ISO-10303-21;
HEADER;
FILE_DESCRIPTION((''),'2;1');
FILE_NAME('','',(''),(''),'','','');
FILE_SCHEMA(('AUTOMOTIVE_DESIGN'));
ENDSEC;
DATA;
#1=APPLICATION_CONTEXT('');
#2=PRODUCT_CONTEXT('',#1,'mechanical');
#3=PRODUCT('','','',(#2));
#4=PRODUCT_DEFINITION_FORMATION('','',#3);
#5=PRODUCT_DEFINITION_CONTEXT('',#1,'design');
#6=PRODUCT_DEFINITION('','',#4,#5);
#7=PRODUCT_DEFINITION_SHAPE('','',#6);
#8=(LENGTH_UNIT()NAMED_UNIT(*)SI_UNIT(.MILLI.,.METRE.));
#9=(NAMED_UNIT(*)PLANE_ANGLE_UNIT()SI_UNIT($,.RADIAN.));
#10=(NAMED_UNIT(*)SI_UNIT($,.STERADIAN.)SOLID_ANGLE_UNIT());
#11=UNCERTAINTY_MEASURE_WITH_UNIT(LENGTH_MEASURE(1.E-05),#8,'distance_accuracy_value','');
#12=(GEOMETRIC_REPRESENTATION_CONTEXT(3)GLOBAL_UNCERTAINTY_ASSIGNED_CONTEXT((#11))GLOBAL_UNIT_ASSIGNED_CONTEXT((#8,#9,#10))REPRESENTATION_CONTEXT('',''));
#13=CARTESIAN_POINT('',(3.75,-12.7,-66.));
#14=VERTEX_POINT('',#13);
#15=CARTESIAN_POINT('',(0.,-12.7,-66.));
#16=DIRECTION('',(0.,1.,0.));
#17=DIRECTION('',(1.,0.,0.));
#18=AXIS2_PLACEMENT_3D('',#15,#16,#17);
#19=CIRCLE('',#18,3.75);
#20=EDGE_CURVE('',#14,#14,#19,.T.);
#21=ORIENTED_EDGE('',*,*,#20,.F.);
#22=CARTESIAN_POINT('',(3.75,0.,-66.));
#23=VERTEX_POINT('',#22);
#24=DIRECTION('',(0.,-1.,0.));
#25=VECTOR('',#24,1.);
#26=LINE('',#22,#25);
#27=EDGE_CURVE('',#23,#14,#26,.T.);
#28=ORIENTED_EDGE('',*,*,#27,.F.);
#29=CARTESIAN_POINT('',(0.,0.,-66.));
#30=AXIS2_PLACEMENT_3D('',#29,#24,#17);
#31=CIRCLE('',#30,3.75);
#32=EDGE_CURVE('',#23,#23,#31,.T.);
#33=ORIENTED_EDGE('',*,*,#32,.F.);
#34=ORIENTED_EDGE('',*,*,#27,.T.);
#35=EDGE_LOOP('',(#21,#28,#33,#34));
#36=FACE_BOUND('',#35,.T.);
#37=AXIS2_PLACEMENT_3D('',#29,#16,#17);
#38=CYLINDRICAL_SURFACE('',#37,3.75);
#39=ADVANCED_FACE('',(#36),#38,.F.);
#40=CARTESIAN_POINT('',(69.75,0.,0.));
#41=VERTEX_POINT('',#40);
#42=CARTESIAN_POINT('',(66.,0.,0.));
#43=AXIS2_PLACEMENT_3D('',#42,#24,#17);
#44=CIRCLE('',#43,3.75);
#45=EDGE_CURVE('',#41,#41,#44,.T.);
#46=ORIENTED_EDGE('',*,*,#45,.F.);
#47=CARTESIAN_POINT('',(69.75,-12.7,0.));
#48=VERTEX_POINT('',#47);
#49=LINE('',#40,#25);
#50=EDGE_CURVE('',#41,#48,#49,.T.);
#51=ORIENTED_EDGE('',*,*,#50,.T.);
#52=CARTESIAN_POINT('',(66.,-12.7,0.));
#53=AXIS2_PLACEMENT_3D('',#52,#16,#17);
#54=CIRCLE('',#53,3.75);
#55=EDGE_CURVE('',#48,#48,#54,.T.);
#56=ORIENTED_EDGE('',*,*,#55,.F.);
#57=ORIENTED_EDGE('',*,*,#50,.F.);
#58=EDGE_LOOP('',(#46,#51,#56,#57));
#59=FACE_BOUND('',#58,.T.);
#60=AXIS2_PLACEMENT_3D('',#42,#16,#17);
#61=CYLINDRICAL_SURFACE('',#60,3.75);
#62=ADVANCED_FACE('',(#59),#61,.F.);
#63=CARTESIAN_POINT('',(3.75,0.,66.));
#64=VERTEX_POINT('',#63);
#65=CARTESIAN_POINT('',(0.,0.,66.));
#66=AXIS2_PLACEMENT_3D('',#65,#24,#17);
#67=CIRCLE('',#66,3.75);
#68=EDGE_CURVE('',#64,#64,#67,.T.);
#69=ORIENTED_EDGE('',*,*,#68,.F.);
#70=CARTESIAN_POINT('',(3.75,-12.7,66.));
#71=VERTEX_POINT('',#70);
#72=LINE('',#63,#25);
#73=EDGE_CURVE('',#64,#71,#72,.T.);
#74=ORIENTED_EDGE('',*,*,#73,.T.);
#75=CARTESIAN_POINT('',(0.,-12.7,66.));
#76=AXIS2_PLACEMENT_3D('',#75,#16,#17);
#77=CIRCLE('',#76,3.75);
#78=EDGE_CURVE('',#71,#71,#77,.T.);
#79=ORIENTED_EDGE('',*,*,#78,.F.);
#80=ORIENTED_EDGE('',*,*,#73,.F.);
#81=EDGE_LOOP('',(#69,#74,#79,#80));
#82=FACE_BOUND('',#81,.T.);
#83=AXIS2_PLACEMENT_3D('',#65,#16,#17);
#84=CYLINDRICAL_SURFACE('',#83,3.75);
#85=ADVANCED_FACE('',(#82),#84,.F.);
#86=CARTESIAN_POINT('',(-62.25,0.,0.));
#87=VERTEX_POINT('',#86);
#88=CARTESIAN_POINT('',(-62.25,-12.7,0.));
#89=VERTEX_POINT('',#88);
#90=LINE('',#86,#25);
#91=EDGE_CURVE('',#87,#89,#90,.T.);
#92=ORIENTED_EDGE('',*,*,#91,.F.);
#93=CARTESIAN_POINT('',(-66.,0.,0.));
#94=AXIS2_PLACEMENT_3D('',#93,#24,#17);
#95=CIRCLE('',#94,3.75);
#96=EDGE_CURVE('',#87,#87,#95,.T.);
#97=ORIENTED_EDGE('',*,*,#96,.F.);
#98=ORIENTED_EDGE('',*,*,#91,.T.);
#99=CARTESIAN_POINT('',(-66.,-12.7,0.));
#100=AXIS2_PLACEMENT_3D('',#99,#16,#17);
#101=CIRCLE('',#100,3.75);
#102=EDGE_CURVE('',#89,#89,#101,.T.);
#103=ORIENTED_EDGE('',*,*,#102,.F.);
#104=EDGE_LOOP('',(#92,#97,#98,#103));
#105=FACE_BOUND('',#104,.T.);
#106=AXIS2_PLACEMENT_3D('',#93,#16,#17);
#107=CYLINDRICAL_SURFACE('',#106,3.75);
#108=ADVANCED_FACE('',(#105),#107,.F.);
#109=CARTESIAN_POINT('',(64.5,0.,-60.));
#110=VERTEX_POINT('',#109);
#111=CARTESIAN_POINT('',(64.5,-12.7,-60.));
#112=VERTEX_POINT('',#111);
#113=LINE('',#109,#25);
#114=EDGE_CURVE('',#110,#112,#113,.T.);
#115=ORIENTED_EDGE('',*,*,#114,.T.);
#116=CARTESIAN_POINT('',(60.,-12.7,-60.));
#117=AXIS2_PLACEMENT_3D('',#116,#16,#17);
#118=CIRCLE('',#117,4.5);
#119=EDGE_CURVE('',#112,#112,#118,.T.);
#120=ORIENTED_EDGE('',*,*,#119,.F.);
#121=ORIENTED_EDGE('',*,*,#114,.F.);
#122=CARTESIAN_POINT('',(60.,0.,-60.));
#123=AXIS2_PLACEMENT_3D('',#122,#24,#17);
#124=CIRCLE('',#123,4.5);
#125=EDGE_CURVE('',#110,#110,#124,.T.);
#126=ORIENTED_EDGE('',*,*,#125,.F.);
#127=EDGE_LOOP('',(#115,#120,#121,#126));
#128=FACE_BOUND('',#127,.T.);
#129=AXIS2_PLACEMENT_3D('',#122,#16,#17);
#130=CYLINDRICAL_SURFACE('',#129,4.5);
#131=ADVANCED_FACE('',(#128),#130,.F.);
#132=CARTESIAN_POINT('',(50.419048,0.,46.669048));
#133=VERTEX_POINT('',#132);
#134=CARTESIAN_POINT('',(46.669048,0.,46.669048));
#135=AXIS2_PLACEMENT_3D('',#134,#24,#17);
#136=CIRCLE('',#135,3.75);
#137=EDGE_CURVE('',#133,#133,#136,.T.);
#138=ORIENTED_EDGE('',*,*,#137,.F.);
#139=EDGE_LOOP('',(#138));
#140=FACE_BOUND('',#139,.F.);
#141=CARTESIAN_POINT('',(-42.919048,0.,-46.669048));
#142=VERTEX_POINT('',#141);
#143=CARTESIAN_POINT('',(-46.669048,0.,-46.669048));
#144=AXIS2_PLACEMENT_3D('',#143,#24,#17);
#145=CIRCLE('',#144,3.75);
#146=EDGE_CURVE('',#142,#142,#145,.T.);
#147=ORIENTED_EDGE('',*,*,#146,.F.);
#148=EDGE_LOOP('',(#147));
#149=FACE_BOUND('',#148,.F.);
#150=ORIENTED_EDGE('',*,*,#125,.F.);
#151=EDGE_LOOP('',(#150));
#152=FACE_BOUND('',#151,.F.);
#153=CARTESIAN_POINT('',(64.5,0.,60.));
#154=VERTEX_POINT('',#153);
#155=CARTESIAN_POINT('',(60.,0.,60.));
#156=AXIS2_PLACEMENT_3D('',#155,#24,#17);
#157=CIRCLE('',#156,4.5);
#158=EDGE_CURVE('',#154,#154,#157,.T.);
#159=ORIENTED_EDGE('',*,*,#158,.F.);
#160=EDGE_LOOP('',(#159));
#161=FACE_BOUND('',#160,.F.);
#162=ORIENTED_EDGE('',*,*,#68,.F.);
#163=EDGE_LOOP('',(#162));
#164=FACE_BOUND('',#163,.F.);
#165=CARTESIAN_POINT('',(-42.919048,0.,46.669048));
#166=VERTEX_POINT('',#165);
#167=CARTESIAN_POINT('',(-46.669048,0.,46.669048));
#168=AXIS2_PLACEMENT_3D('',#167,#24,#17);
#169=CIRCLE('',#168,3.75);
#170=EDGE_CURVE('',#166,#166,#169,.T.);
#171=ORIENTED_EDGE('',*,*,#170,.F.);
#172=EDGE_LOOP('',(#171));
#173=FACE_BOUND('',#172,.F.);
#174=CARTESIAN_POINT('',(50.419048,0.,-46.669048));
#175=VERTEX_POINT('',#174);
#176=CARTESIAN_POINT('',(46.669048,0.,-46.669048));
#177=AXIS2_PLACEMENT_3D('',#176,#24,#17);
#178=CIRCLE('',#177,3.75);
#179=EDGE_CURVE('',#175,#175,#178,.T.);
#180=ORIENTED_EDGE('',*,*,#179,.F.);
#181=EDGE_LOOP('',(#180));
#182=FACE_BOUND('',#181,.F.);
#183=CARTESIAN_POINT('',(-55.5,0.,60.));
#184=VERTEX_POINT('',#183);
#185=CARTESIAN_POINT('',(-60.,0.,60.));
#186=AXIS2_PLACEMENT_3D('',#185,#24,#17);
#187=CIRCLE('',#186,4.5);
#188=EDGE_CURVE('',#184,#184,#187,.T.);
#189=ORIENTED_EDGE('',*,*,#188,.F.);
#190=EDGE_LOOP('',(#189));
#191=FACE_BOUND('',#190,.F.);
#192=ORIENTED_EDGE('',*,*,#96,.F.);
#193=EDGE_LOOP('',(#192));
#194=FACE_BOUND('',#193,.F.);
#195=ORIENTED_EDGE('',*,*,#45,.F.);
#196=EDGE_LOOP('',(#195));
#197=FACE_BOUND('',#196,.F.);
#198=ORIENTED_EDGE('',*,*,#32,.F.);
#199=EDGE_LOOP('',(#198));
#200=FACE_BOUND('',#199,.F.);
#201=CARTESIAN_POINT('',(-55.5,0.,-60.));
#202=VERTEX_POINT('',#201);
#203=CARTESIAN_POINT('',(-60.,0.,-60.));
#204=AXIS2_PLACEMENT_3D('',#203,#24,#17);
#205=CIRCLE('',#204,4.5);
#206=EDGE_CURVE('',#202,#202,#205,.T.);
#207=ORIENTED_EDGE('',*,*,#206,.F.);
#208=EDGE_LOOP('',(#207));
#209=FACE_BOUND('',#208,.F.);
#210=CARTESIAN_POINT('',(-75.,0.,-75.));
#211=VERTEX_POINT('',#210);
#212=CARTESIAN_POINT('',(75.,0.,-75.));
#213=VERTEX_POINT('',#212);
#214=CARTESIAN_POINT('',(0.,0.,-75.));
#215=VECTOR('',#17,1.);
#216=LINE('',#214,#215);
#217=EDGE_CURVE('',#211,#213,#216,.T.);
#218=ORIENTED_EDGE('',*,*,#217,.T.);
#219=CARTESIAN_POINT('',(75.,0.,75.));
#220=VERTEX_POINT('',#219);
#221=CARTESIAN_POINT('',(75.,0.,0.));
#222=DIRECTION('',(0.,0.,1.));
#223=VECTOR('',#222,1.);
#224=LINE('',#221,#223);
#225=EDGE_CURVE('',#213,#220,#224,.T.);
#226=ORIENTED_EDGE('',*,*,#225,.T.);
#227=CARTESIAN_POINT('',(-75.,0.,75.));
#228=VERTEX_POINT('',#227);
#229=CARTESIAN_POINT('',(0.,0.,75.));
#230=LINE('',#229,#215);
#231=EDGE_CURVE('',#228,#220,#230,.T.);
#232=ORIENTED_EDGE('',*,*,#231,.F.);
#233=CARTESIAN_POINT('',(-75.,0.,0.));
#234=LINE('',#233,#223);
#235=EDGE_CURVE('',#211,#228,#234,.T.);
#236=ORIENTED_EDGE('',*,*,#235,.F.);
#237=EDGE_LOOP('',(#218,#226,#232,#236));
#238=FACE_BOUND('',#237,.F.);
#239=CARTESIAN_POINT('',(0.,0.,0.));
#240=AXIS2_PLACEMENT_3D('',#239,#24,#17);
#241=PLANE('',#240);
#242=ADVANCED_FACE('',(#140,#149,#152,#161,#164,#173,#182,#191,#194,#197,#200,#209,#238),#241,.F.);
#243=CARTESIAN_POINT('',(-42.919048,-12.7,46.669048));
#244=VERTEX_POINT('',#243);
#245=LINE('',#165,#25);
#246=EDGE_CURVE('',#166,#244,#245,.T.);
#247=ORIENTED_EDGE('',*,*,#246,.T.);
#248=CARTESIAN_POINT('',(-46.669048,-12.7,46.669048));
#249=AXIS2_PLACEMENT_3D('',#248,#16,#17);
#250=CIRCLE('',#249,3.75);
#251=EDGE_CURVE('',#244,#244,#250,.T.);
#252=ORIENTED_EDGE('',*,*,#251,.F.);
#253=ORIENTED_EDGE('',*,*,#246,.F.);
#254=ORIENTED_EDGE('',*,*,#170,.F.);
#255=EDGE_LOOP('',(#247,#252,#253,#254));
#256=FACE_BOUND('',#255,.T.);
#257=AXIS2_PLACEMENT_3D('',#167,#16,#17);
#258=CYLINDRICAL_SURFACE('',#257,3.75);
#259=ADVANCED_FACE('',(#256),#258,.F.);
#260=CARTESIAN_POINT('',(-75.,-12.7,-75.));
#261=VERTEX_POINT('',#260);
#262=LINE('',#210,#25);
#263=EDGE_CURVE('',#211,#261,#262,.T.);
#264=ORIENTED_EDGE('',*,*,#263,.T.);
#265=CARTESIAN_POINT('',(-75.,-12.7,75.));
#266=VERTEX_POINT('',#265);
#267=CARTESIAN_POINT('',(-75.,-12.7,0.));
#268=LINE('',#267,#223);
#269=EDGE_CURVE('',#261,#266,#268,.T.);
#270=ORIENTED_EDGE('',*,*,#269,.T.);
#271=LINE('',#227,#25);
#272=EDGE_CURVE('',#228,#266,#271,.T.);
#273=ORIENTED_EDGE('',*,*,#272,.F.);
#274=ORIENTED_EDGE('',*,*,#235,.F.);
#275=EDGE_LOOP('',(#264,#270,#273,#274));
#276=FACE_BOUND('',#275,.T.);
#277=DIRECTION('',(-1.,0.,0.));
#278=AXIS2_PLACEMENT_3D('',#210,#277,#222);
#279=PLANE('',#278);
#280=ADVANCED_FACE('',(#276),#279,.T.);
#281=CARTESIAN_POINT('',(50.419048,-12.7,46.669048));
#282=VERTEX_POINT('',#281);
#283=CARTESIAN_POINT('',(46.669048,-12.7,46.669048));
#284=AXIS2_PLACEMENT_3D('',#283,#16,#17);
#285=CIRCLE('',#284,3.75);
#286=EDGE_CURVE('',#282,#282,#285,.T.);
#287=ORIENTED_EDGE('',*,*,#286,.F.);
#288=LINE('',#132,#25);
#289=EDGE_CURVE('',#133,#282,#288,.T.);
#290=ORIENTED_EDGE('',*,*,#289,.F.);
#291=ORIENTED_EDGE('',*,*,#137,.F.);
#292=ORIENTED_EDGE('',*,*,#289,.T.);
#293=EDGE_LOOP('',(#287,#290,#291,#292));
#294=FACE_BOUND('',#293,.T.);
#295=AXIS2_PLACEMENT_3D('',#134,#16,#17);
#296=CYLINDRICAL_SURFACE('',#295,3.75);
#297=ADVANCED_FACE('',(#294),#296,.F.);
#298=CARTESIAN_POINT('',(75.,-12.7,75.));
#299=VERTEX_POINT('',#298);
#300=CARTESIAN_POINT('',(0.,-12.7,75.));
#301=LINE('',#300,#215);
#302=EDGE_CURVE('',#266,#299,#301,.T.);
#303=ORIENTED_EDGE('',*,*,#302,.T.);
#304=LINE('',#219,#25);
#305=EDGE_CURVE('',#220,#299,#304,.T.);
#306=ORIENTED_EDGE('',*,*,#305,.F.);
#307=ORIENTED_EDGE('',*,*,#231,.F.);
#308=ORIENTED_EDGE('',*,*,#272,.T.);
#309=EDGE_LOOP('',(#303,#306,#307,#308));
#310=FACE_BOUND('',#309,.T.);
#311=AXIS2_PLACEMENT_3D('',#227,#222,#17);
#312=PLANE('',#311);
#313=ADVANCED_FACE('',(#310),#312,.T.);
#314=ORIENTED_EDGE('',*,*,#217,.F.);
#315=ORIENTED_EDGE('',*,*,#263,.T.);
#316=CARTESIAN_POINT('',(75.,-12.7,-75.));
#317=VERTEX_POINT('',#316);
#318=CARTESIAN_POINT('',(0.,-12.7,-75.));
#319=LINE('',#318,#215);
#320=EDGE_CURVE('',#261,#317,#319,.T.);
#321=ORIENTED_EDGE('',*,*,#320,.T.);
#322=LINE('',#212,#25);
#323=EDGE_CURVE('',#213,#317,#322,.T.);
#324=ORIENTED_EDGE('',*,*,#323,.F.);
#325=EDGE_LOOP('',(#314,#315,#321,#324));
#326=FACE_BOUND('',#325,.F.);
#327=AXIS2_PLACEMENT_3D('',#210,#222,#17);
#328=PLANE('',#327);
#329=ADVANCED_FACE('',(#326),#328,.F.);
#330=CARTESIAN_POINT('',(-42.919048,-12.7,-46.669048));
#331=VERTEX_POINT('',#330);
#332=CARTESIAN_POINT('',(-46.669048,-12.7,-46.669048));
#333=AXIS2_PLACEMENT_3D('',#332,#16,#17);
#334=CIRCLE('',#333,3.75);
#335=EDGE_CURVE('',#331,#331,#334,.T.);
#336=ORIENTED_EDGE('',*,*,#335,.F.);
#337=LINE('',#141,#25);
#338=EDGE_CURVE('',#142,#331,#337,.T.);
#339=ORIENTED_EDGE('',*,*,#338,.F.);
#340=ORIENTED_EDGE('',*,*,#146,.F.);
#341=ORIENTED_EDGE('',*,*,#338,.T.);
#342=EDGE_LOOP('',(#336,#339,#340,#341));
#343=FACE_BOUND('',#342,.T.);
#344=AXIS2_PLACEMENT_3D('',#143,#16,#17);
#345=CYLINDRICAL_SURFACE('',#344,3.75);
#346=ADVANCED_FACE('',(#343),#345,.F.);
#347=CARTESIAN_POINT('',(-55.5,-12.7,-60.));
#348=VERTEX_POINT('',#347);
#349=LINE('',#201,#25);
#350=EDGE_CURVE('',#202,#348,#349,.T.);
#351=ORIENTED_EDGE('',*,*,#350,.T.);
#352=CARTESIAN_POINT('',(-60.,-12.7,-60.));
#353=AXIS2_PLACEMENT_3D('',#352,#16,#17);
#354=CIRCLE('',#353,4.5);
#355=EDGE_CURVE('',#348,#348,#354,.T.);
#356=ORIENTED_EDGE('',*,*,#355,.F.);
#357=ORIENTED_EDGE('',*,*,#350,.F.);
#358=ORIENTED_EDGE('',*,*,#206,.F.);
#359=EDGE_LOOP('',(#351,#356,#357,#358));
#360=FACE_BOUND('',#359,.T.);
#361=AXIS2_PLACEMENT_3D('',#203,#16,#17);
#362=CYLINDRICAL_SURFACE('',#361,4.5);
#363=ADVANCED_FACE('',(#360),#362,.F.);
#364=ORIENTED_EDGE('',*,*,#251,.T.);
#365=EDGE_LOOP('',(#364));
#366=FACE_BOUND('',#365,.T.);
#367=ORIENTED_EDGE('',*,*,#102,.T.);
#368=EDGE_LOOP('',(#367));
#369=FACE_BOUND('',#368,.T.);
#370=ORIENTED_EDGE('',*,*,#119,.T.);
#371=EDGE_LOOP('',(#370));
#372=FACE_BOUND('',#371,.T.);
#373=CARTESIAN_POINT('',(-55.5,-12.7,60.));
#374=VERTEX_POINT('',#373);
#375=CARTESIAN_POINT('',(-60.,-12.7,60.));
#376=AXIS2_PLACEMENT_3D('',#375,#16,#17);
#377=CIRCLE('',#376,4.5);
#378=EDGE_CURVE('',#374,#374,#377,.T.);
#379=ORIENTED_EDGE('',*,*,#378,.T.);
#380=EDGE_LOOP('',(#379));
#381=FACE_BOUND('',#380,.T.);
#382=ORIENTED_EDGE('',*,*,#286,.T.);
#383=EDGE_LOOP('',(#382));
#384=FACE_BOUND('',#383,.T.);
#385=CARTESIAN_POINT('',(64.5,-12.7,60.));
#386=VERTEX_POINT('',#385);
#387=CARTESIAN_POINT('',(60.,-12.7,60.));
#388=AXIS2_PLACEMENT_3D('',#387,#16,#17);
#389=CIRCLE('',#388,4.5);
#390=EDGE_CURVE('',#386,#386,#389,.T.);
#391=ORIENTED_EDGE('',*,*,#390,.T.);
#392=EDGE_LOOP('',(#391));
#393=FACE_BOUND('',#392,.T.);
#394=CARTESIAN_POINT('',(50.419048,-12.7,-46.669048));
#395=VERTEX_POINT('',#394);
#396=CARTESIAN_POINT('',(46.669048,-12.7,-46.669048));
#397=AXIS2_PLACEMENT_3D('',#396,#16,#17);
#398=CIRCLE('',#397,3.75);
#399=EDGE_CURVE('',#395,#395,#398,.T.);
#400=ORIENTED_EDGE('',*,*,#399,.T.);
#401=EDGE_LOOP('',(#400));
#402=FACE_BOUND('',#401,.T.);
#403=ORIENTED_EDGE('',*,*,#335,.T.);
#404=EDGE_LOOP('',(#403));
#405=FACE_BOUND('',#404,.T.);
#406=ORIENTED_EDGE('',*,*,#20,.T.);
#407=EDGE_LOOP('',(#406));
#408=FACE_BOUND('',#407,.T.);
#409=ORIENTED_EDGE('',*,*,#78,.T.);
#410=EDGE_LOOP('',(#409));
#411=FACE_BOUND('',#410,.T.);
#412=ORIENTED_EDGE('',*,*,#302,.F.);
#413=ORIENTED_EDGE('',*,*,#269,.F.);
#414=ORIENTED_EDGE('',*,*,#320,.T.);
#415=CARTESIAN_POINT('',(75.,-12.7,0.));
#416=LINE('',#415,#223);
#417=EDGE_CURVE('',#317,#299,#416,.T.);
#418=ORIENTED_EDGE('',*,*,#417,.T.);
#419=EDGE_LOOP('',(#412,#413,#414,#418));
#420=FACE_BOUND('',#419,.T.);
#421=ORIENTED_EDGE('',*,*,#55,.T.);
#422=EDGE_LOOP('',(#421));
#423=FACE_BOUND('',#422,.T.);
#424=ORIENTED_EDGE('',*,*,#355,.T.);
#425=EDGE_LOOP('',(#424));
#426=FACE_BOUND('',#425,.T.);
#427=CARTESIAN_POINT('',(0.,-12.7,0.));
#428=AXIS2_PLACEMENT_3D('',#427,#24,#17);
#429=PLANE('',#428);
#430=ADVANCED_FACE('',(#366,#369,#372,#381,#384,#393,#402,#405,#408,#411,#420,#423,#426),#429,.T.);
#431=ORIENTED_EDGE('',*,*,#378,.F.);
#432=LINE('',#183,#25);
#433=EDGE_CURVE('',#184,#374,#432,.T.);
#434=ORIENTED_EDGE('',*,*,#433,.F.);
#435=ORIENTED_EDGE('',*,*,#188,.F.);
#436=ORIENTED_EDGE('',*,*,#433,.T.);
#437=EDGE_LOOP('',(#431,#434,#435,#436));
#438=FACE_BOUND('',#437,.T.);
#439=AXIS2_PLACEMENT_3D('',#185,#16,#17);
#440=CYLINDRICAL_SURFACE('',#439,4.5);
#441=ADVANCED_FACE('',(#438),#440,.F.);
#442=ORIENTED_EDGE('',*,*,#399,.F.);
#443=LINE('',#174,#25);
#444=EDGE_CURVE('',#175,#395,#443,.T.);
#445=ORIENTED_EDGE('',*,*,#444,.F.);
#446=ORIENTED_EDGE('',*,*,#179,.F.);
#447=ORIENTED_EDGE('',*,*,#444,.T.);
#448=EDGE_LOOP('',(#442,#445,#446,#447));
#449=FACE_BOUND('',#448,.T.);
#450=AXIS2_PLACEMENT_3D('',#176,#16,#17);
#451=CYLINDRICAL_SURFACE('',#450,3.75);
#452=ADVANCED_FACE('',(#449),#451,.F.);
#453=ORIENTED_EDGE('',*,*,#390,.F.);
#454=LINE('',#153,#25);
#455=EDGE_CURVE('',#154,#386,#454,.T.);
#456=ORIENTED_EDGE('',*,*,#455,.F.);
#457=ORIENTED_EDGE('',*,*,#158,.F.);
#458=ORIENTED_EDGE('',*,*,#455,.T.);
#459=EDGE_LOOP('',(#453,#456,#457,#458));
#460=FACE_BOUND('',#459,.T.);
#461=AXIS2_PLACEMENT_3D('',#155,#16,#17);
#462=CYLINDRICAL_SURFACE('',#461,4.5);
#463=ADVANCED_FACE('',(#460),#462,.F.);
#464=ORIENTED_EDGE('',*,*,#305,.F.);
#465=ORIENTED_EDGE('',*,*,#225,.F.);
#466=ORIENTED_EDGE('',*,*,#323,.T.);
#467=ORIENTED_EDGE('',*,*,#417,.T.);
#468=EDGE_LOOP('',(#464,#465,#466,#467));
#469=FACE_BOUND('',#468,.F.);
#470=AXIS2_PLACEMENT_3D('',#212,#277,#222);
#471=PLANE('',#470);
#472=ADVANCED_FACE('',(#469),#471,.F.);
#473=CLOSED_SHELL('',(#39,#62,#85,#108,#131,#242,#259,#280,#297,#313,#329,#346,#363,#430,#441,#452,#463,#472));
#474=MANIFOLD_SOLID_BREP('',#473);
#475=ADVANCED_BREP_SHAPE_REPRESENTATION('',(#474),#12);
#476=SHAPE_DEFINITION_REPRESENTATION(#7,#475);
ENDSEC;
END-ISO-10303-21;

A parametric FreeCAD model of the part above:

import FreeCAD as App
import Part
import Sketcher

V = App.Vector
Q = App.Units.Quantity

doc = App.newDocument("Part")
body = doc.addObject("PartDesign::Body", "Body")

# Sketch on XZ plane
sketch1 = body.newObject("Sketcher::SketchObject", "Sketch")
sketch1.AttachmentSupport = (doc.getObject("XZ_Plane"), [""])
sketch1.MapMode = "FlatFace"
sketch1.addGeometry([
    Part.LineSegment(V(-75, 75, 0), V(-75, -75, 0)),
    Part.LineSegment(V(-75, -75, 0), V(75, -75, 0)),
    Part.LineSegment(V(75, -75, 0), V(75, 75, 0)),
    Part.LineSegment(V(75, 75, 0), V(-75, 75, 0)),
], False)
sketch1.addConstraint([
    Sketcher.Constraint("Coincident", 0, 2, 1, 1),
    Sketcher.Constraint("Coincident", 1, 2, 2, 1),
    Sketcher.Constraint("Coincident", 2, 2, 3, 1),
    Sketcher.Constraint("Coincident", 3, 2, 0, 1),
    Sketcher.Constraint("Vertical", 0),
    Sketcher.Constraint("Horizontal", 1),
    Sketcher.Constraint("Vertical", 2),
    Sketcher.Constraint("Horizontal", 3),
    Sketcher.Constraint("Symmetric", 0, 2, 2, 2, -1, 1),
    Sketcher.Constraint("Equal", 3, 0),
    Sketcher.Constraint("DistanceX", 1, 1, 1, 2, Q("150 mm")),
])
pad1 = body.newObject("PartDesign::Pad", "Pad")
pad1.Profile = sketch1
pad1.Length = 12.7

# Sketch on XZ plane
sketch2 = body.newObject("Sketcher::SketchObject", "Sketch001")
sketch2.AttachmentSupport = (doc.getObject("XZ_Plane"), [""])
sketch2.MapMode = "FlatFace"
sketch2.addGeometry([
    Part.Circle(V(-60, 60, 0), V(0, 0, 1), 4.5),  # 0
    Part.Circle(V(60, 60, 0), V(0, 0, 1), 4.5),  # 1
    Part.Circle(V(-60, -60, 0), V(0, 0, 1), 4.5),  # 2
    Part.Circle(V(60, -60, 0), V(0, 0, 1), 4.5),  # 3
    Part.Circle(V(0, 66, 0), V(0, 0, 1), 3.8),  # 4
    Part.Circle(V(-46.7, 46.7, 0), V(0, 0, 1), 3.8),  # 5
    Part.Circle(V(-66, 0, 0), V(0, 0, 1), 3.8),  # 6
    Part.Circle(V(-46.7, -46.7, 0), V(0, 0, 1), 3.8),  # 7
    Part.Circle(V(0, -66, 0), V(0, 0, 1), 3.8),  # 8
    Part.Circle(V(46.7, -46.7, 0), V(0, 0, 1), 3.8),  # 9
    Part.Circle(V(66, 0, 0), V(0, 0, 1), 3.8),  # 10
    Part.Circle(V(46.7, 46.7, 0), V(0, 0, 1), 3.8),  # 11
], False)
sketch2.addConstraint([
    Sketcher.Constraint("Equal", 0, 1),
    Sketcher.Constraint("Equal", 1, 2),
    Sketcher.Constraint("Equal", 2, 3),
    Sketcher.Constraint("Equal", 4, 5),
    Sketcher.Constraint("Equal", 5, 6),
    Sketcher.Constraint("Equal", 6, 7),
    Sketcher.Constraint("Equal", 7, 8),
    Sketcher.Constraint("Equal", 8, 9),
    Sketcher.Constraint("Equal", 9, 10),
    Sketcher.Constraint("Equal", 10, 11),
    Sketcher.Constraint("Symmetric", 1, 3, 2, 3, -1, 1),
    Sketcher.Constraint("Symmetric", 0, 3, 3, 3, -1, 1),
    Sketcher.Constraint("Symmetric", 4, 3, 8, 3, -1, 1),
    Sketcher.Constraint("Symmetric", 5, 3, 9, 3, -1, 1),
    Sketcher.Constraint("Symmetric", 6, 3, 10, 3, -1, 1),
    Sketcher.Constraint("Symmetric", 7, 3, 11, 3, -1, 1),
    Sketcher.Constraint("Symmetric", 0, 3, 1, 3, -2),
    Sketcher.Constraint("Symmetric", 7, 3, 9, 3, -2),
    Sketcher.Constraint("PointOnObject", 4, 3, -2),
    Sketcher.Constraint("PointOnObject", 6, 3, -1),
    Sketcher.Constraint("Diameter", 0, Q("9 mm")),
    Sketcher.Constraint("Diameter", 4, Q("7.5 mm")),
    Sketcher.Constraint("DistanceX", 0, 3, -1, 1, Q("60 mm")),
    Sketcher.Constraint("DistanceY", -1, 1, 0, 3, Q("60 mm")),
    Sketcher.Constraint("DistanceY", -1, 1, 4, 3, Q("66 mm")),
    Sketcher.Constraint("DistanceX", 6, 3, -1, 1, Q("66 mm")),
    Sketcher.Constraint("DistanceX", 5, 3, 1, 3, Q("106.669048 mm")),
    Sketcher.Constraint("DistanceY", 2, 3, 5, 3, Q("106.669048 mm")),
])
pocket1 = body.newObject("PartDesign::Pocket", "Pocket")
pocket1.Profile = sketch2
pocket1.Type = "ThroughAll"
pocket1.Reversed = True

doc.recompute()
